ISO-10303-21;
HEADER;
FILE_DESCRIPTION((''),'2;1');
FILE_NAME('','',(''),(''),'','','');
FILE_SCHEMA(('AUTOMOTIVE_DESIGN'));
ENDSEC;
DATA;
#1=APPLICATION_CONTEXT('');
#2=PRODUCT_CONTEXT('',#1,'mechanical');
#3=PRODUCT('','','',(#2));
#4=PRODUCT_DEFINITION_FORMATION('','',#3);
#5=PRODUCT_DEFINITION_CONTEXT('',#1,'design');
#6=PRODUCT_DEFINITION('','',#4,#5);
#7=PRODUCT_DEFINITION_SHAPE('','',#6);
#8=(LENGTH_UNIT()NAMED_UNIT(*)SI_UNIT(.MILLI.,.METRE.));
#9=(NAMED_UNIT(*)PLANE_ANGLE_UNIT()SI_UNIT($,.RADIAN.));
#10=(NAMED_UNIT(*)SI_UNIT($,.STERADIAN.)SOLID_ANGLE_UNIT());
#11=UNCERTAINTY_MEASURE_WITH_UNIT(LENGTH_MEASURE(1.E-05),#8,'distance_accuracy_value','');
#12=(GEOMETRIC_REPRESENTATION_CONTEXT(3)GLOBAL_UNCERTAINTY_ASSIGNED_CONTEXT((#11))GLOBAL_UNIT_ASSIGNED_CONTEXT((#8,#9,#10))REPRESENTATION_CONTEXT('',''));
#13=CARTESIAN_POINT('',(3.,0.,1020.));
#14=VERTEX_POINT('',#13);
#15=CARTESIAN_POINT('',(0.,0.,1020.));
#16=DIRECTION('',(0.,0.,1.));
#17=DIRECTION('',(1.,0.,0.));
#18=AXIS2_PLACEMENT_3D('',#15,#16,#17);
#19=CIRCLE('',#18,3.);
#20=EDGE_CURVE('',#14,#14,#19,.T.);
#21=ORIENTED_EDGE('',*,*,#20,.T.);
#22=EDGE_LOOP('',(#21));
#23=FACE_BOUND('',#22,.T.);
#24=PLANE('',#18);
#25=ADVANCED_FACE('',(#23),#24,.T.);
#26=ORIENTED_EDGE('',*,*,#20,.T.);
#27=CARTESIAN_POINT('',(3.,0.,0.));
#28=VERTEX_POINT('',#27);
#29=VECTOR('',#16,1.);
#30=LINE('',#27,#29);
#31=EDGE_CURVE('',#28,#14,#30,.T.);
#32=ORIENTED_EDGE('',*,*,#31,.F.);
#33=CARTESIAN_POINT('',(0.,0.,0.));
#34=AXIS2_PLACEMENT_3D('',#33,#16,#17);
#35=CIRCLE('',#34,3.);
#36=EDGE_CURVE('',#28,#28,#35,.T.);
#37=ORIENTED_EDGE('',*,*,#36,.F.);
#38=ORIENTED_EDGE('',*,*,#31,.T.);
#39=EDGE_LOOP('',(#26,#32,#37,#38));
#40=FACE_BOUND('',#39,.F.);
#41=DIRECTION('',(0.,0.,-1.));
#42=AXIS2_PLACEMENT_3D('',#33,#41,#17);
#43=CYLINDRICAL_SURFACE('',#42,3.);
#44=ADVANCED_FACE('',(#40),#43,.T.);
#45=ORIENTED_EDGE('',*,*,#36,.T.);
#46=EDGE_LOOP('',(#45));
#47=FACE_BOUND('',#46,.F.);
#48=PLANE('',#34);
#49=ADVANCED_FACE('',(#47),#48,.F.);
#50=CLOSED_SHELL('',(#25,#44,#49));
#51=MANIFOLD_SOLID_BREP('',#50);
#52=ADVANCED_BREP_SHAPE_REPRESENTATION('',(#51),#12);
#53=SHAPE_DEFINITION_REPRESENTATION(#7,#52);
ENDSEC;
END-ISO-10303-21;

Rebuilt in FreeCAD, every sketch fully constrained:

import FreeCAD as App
import Part
import Sketcher

doc = App.newDocument("Part")
body = doc.addObject("PartDesign::Body", "Body")

sketch1 = body.newObject("Sketcher::SketchObject", "Sketch")
sketch1.AttachmentSupport = (doc.getObject("XY_Plane"), [""])
sketch1.MapMode = "FlatFace"
sketch1.addGeometry(Part.Circle(App.Vector(0, 0, 0), App.Vector(0, 0, 1), 3), False)
sketch1.addConstraint(Sketcher.Constraint("Coincident", 0, 3, -1, 1))
sketch1.addConstraint(Sketcher.Constraint("Diameter", 0, 6.0))
pad1 = body.newObject("PartDesign::Pad", "Pad")
pad1.Profile = sketch1
pad1.Length = 1020

doc.recompute()
